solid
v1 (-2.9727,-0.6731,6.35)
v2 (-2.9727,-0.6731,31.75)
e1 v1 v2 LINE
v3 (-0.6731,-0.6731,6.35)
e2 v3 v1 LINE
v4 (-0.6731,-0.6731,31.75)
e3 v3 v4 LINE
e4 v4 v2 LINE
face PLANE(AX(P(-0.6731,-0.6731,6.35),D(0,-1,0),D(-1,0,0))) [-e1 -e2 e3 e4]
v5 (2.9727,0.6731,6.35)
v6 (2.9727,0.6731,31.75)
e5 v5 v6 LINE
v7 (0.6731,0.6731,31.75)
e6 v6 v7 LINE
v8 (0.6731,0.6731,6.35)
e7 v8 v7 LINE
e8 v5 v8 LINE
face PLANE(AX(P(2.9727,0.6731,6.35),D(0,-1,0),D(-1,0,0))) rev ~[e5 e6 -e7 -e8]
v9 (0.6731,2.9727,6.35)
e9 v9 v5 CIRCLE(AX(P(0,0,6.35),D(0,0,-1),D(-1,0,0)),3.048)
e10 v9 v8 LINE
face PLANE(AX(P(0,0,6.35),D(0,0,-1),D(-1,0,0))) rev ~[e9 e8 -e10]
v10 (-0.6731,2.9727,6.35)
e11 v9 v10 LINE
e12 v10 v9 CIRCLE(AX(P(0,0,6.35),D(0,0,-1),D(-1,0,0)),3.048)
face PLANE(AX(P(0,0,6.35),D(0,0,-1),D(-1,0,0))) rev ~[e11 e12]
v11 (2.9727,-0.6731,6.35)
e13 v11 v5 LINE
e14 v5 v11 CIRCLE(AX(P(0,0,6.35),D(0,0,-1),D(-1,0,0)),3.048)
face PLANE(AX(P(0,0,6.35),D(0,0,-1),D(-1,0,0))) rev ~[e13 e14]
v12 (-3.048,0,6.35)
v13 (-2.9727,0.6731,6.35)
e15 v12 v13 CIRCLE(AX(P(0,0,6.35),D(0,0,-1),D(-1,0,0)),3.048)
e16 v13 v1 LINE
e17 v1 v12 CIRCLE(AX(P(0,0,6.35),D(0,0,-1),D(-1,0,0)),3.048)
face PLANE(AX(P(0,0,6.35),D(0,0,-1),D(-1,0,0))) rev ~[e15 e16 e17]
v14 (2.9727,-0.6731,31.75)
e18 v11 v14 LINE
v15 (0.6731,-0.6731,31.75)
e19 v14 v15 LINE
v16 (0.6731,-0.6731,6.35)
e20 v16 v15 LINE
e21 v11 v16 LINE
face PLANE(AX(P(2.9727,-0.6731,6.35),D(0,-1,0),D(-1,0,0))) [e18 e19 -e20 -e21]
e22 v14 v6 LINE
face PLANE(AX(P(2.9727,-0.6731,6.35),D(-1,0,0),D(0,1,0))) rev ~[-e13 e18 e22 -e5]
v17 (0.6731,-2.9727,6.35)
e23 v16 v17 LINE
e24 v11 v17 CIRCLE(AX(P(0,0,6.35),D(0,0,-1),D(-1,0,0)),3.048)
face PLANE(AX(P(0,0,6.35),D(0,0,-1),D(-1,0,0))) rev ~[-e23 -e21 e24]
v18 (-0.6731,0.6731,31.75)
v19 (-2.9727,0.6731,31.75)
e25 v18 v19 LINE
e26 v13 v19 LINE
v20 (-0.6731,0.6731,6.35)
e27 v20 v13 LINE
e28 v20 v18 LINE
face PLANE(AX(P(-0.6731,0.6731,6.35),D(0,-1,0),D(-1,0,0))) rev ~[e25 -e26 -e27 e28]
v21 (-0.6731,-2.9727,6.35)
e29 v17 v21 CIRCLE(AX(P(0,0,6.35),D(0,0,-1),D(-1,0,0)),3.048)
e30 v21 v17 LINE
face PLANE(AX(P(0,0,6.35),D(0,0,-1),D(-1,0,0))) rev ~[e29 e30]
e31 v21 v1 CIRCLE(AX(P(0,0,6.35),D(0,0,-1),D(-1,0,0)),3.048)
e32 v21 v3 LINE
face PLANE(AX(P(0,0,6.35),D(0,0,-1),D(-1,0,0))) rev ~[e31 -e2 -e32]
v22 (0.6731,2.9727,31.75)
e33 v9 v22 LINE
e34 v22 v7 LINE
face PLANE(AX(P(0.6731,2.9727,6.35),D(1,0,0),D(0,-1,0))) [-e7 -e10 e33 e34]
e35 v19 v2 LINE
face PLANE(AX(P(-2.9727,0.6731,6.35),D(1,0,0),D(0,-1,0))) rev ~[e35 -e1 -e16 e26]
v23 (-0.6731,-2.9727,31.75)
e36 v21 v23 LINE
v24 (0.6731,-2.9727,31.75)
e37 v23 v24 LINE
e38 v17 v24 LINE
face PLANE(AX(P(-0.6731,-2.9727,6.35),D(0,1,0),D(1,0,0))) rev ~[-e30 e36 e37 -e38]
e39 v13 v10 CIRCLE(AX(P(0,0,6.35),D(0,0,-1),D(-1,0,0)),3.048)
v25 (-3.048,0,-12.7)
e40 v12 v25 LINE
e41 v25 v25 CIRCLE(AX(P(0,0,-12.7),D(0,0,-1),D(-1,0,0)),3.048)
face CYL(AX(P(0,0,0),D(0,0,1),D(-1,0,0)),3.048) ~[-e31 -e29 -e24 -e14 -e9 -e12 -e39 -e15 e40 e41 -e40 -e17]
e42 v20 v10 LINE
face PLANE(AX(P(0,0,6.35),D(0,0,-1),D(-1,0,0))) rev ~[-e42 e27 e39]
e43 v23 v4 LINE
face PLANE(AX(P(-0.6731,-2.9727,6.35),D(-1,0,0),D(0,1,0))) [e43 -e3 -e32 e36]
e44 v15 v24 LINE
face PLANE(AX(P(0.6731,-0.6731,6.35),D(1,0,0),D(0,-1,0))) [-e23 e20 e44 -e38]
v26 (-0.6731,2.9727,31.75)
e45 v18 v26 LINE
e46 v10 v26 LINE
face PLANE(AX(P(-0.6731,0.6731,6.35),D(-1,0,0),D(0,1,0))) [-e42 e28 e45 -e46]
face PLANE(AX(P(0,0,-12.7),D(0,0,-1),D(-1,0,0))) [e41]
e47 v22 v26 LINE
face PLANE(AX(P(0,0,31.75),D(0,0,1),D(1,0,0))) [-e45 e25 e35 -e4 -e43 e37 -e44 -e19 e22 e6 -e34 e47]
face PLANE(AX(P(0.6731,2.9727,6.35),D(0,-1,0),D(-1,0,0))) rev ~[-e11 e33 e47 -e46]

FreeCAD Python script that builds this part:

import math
import FreeCAD as App
import Part
import Sketcher

V = App.Vector
Q = App.Units.Quantity

doc = App.newDocument("Part")
params = doc.addObject("Spreadsheet::Sheet", "Params")
for row, (alias, value) in enumerate([
    ("sketch1_diameter", "0.24 in"),
    ("pad1_length", "1.5 in"),
    ("sketch2_diameter", "0.24 in"),
    ("pocket1_length", "0.25 in"),
    ("sketch3_radius", "0.12 in"),
    ("pocket2_length", "1.25 in"),
    ("sketch4_radius", "0.12 in"),
    ("sketch4_width", "0.053 in"),
    ("pocket3_length", "1 in"),
    ("sketch5_diameter", "0.24 in"),
    ("pad2_length", "0.25 in"),
    ("sketch6_diameter", "0.24 in"),
    ("pocket4_length", "0.25 in"),
    ("sketch7_diameter", "0.24 in"),
    ("pad3_length", "0.5 in"),
], start=1):
    params.set(f"A{row}", alias)
    params.set(f"B{row}", "=" + value)
    params.setAlias(f"B{row}", alias)

body = doc.addObject("PartDesign::Body", "Body")

sketch1 = doc.addObject("Sketcher::SketchObject", "Sketch")
body.addObject(sketch1)
sketch1.AttachmentSupport = (doc.XY_Plane, [""])
sketch1.MapMode = "FlatFace"
sketch1.addGeometry(Part.Circle(V(0, 0, 0), V(0, 0, 1), 3.048), False)
sketch1.addConstraint(Sketcher.Constraint("Coincident", 0, 3, -1, 1))
sketch1.addConstraint(Sketcher.Constraint("Diameter", 0, Q("0.24 in")))
sketch1.setExpression("Constraints[1]", "Params.sketch1_diameter")
pad1 = doc.addObject("PartDesign::Pad", "Pad")
body.addObject(pad1)
pad1.Profile = sketch1
pad1.setExpression("Length", "Params.pad1_length")

sketch2 = doc.addObject("Sketcher::SketchObject", "Sketch001")
body.addObject(sketch2)
sketch2.AttachmentSupport = (doc.XY_Plane, [""])
sketch2.MapMode = "FlatFace"
sketch2.addGeometry(Part.Circle(V(0, 0, 0), V(0, 0, 1), 3.048), False)
sketch2.addConstraint(Sketcher.Constraint("Coincident", 0, 3, -1, 1))
sketch2.addConstraint(Sketcher.Constraint("Diameter", 0, Q("0.24 in")))
sketch2.setExpression("Constraints[1]", "Params.sketch2_diameter")
pocket1 = doc.addObject("PartDesign::Pocket", "Pocket")
body.addObject(pocket1)
pocket1.Profile = sketch2
pocket1.setExpression("Length", "Params.pocket1_length")
pocket1.Reversed = True

sketch3 = doc.addObject("Sketcher::SketchObject", "Sketch002")
body.addObject(sketch3)
sketch3.AttachmentSupport = (doc.XY_Plane, [""])
sketch3.MapMode = "FlatFace"
sketch3.AttachmentOffset = App.Placement(V(0, 0, 0.25 * 25.4), App.Rotation())
sketch3.addGeometry(Part.LineSegment(V(-0.6731, 0.6731, 0), V(-2.9727, 0.6731, 0)), False)
sketch3.addGeometry(Part.ArcOfCircle(Part.Circle(V(0, 0, 0), V(0, 0, 1), 3.048), math.radians(102.758189), math.radians(167.241811)), False)
sketch3.addGeometry(Part.LineSegment(V(-0.6731, 2.9727, 0), V(-0.6731, 0.6731, 0)), False)
sketch3.addGeometry(Part.ArcOfCircle(Part.Circle(V(0, 0, 0), V(0, 0, 1), 3.048), math.radians(-167.241811), math.radians(-102.758189)), False)
sketch3.addGeometry(Part.LineSegment(V(-2.9727, -0.6731, 0), V(-0.6731, -0.6731, 0)), False)
sketch3.addGeometry(Part.LineSegment(V(-0.6731, -0.6731, 0), V(-0.6731, -2.9727, 0)), False)
sketch3.addGeometry(Part.LineSegment(V(0.6731, 0.6731, 0), V(0.6731, 2.9727, 0)), False)
sketch3.addGeometry(Part.ArcOfCircle(Part.Circle(V(0, 0, 0), V(0, 0, 1), 3.048), math.radians(12.758189), math.radians(77.241811)), False)
sketch3.addGeometry(Part.LineSegment(V(2.9727, 0.6731, 0), V(0.6731, 0.6731, 0)), False)
sketch3.addGeometry(Part.ArcOfCircle(Part.Circle(V(0, 0, 0), V(0, 0, 1), 3.048), math.radians(-77.241811), math.radians(-12.758189)), False)
sketch3.addGeometry(Part.LineSegment(V(0.6731, -2.9727, 0), V(0.6731, -0.6731, 0)), False)
sketch3.addGeometry(Part.LineSegment(V(0.6731, -0.6731, 0), V(2.9727, -0.6731, 0)), False)
sketch3.addConstraint(Sketcher.Constraint("Coincident", 0, 2, 1, 2))
sketch3.addConstraint(Sketcher.Constraint("Coincident", 1, 1, 2, 1))
sketch3.addConstraint(Sketcher.Constraint("Coincident", 2, 2, 0, 1))
sketch3.addConstraint(Sketcher.Constraint("Coincident", 3, 1, 4, 1))
sketch3.addConstraint(Sketcher.Constraint("Coincident", 4, 2, 5, 1))
sketch3.addConstraint(Sketcher.Constraint("Coincident", 5, 2, 3, 2))
sketch3.addConstraint(Sketcher.Constraint("Coincident", 6, 2, 7, 2))
sketch3.addConstraint(Sketcher.Constraint("Coincident", 7, 1, 8, 1))
sketch3.addConstraint(Sketcher.Constraint("Coincident", 8, 2, 6, 1))
sketch3.addConstraint(Sketcher.Constraint("Coincident", 9, 1, 10, 1))
sketch3.addConstraint(Sketcher.Constraint("Coincident", 10, 2, 11, 1))
sketch3.addConstraint(Sketcher.Constraint("Coincident", 11, 2, 9, 2))
sketch3.addConstraint(Sketcher.Constraint("Horizontal", 0))
sketch3.addConstraint(Sketcher.Constraint("Vertical", 2))
sketch3.addConstraint(Sketcher.Constraint("Horizontal", 4))
sketch3.addConstraint(Sketcher.Constraint("Vertical", 5))
sketch3.addConstraint(Sketcher.Constraint("Vertical", 6))
sketch3.addConstraint(Sketcher.Constraint("Horizontal", 8))
sketch3.addConstraint(Sketcher.Constraint("Vertical", 10))
sketch3.addConstraint(Sketcher.Constraint("Horizontal", 11))
sketch3.addConstraint(Sketcher.Constraint("Coincident", 1, 3, -1, 1))
sketch3.addConstraint(Sketcher.Constraint("Coincident", 3, 3, -1, 1))
sketch3.addConstraint(Sketcher.Constraint("Coincident", 7, 3, -1, 1))
sketch3.addConstraint(Sketcher.Constraint("Coincident", 9, 3, -1, 1))
sketch3.addConstraint(Sketcher.Constraint("Equal", 1, 3))
sketch3.addConstraint(Sketcher.Constraint("Equal", 3, 7))
sketch3.addConstraint(Sketcher.Constraint("Equal", 7, 9))
sketch3.addConstraint(Sketcher.Constraint("Symmetric", 4, 2, 8, 2, -1, 1))
sketch3.addConstraint(Sketcher.Constraint("Symmetric", 2, 2, 10, 2, -1, 1))
sketch3.addConstraint(Sketcher.Constraint("Symmetric", 2, 2, 8, 2, -2))
sketch3.addConstraint(Sketcher.Constraint("Equal", 11, 2))
sketch3.addConstraint(Sketcher.Constraint("Radius", 1, Q("0.12 in")))
sketch3.addConstraint(Sketcher.Constraint("DistanceY", 3, 1, 0, 2, Q("0.053 in")))
sketch3.setExpression("Constraints[31]", "Params.sketch3_radius")
pocket2 = doc.addObject("PartDesign::Pocket", "Pocket001")
body.addObject(pocket2)
pocket2.Profile = sketch3
pocket2.setExpression("Length", "Params.pocket2_length")
pocket2.Reversed = True

sketch4 = doc.addObject("Sketcher::SketchObject", "Sketch003")
body.addObject(sketch4)
sketch4.AttachmentSupport = (doc.XY_Plane, [""])
sketch4.MapMode = "FlatFace"
sketch4.AttachmentOffset = App.Placement(V(0, 0, 0.25 * 25.4), App.Rotation())
sketch4.addGeometry(Part.ArcOfCircle(Part.Circle(V(0, 0, 0), V(0, 0, 1), 3.048), math.radians(167.241811), math.radians(192.758189)), False)
sketch4.addGeometry(Part.LineSegment(V(-2.9727, -0.6731, 0), V(-2.9727, 0.6731, 0)), False)
sketch4.addGeometry(Part.LineSegment(V(0.6731, 2.9727, 0), V(-0.6731, 2.9727, 0)), False)
sketch4.addGeometry(Part.ArcOfCircle(Part.Circle(V(0, 0, 0), V(0, 0, 1), 3.048), math.radians(77.241811), math.radians(102.758189)), False)
sketch4.addGeometry(Part.ArcOfCircle(Part.Circle(V(0, 0, 0), V(0, 0, 1), 3.048), math.radians(-102.758189), math.radians(-77.241811)), False)
sketch4.addGeometry(Part.LineSegment(V(0.6731, -2.9727, 0), V(-0.6731, -2.9727, 0)), False)
sketch4.addGeometry(Part.LineSegment(V(2.9727, -0.6731, 0), V(2.9727, 0.6731, 0)), False)
sketch4.addGeometry(Part.ArcOfCircle(Part.Circle(V(0, 0, 0), V(0, 0, 1), 3.048), math.radians(-12.758189), math.radians(12.758189)), False)
sketch4.addConstraint(Sketcher.Constraint("Coincident", 0, 1, 1, 2))
sketch4.addConstraint(Sketcher.Constraint("Coincident", 1, 1, 0, 2))
sketch4.addConstraint(Sketcher.Constraint("Coincident", 2, 1, 3, 1))
sketch4.addConstraint(Sketcher.Constraint("Coincident", 3, 2, 2, 2))
sketch4.addConstraint(Sketcher.Constraint("Coincident", 4, 1, 5, 2))
sketch4.addConstraint(Sketcher.Constraint("Coincident", 5, 1, 4, 2))
sketch4.addConstraint(Sketcher.Constraint("Coincident", 6, 1, 7, 1))
sketch4.addConstraint(Sketcher.Constraint("Coincident", 7, 2, 6, 2))
sketch4.addConstraint(Sketcher.Constraint("Vertical", 1))
sketch4.addConstraint(Sketcher.Constraint("Horizontal", 2))
sketch4.addConstraint(Sketcher.Constraint("Horizontal", 5))
sketch4.addConstraint(Sketcher.Constraint("Vertical", 6))
sketch4.addConstraint(Sketcher.Constraint("Coincident", 0, 3, -1, 1))
sketch4.addConstraint(Sketcher.Constraint("Coincident", 3, 3, -1, 1))
sketch4.addConstraint(Sketcher.Constraint("Coincident", 4, 3, -1, 1))
sketch4.addConstraint(Sketcher.Constraint("Coincident", 7, 3, -1, 1))
sketch4.addConstraint(Sketcher.Constraint("Equal", 0, 3))
sketch4.addConstraint(Sketcher.Constraint("Equal", 3, 4))
sketch4.addConstraint(Sketcher.Constraint("Equal", 4, 7))
sketch4.addConstraint(Sketcher.Constraint("Horizontal", 1, 1, 6, 1))
sketch4.addConstraint(Sketcher.Constraint("Vertical", 3, 2, 4, 1))
sketch4.addConstraint(Sketcher.Constraint("Equal", 5, 1))
sketch4.addConstraint(Sketcher.Constraint("Radius", 0, Q("0.12 in")))
sketch4.addConstraint(Sketcher.Constraint("DistanceX", 2, 2, 2, 1, Q("0.053 in")))
sketch4.setExpression("Constraints[22]", "Params.sketch4_radius")
sketch4.setExpression("Constraints[23]", "Params.sketch4_width")
pocket3 = doc.addObject("PartDesign::Pocket", "Pocket002")
body.addObject(pocket3)
pocket3.Profile = sketch4
pocket3.setExpression("Length", "Params.pocket3_length")
pocket3.Reversed = True

sketch5 = doc.addObject("Sketcher::SketchObject", "Sketch004")
body.addObject(sketch5)
sketch5.AttachmentSupport = (doc.XY_Plane, [""])
sketch5.MapMode = "FlatFace"
sketch5.AttachmentOffset = App.Placement(V(0, 0, 0.25 * 25.4), App.Rotation())
sketch5.addGeometry(Part.Circle(V(0, 0, 0), V(0, 0, 1), 3.048), False)
sketch5.addConstraint(Sketcher.Constraint("Coincident", 0, 3, -1, 1))
sketch5.addConstraint(Sketcher.Constraint("Diameter", 0, Q("0.24 in")))
sketch5.setExpression("Constraints[1]", "Params.sketch5_diameter")
pad2 = doc.addObject("PartDesign::Pad", "Pad001")
body.addObject(pad2)
pad2.Profile = sketch5
pad2.setExpression("Length", "Params.pad2_length")
pad2.Reversed = True

sketch6 = doc.addObject("Sketcher::SketchObject", "Sketch005")
body.addObject(sketch6)
sketch6.AttachmentSupport = (doc.XY_Plane, [""])
sketch6.MapMode = "FlatFace"
sketch6.AttachmentOffset = App.Placement(V(0, 0, 1.5 * 25.4), App.Rotation())
sketch6.addGeometry(Part.Circle(V(0, 0, 0), V(0, 0, 1), 3.048), False)
sketch6.addConstraint(Sketcher.Constraint("Coincident", 0, 3, -1, 1))
sketch6.addConstraint(Sketcher.Constraint("Diameter", 0, Q("0.24 in")))
sketch6.setExpression("Constraints[1]", "Params.sketch6_diameter")
pocket4 = doc.addObject("PartDesign::Pocket", "Pocket003")
body.addObject(pocket4)
pocket4.Profile = sketch6
pocket4.setExpression("Length", "Params.pocket4_length")

sketch7 = doc.addObject("Sketcher::SketchObject", "Sketch006")
body.addObject(sketch7)
sketch7.AttachmentSupport = (doc.XY_Plane, [""])
sketch7.MapMode = "FlatFace"
sketch7.addGeometry(Part.Circle(V(0, 0, 0), V(0, 0, 1), 3.048), False)
sketch7.addConstraint(Sketcher.Constraint("Coincident", 0, 3, -1, 1))
sketch7.addConstraint(Sketcher.Constraint("Diameter", 0, Q("0.24 in")))
sketch7.setExpression("Constraints[1]", "Params.sketch7_diameter")
pad3 = doc.addObject("PartDesign::Pad", "Pad002")
body.addObject(pad3)
pad3.Profile = sketch7
pad3.setExpression("Length", "Params.pad3_length")
pad3.Reversed = True

doc.recompute()
